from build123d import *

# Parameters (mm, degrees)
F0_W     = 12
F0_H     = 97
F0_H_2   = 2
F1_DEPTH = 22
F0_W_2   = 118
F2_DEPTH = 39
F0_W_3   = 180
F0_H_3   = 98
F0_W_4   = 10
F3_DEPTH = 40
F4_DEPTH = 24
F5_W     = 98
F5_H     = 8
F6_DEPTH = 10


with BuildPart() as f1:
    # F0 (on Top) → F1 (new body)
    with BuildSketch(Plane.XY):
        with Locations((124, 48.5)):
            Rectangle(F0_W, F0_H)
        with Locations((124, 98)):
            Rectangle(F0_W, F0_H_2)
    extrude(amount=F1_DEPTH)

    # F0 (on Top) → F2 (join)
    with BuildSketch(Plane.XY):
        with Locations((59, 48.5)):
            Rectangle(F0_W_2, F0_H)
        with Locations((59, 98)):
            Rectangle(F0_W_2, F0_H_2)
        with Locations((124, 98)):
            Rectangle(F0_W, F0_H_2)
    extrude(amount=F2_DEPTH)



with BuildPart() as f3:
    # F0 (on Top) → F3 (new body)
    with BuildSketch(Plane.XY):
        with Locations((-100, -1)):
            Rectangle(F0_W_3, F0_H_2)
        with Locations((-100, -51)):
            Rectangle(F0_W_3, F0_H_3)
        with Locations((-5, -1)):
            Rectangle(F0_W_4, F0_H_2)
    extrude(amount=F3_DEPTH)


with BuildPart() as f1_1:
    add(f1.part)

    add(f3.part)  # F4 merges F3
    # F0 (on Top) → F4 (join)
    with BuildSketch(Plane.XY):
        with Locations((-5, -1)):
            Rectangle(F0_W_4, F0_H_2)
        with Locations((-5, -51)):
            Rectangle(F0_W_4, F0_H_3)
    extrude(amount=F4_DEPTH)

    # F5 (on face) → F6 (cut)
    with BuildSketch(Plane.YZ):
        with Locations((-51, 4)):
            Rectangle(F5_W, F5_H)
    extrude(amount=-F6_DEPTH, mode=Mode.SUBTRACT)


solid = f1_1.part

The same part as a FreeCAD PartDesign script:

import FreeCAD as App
import Part
import Sketcher

V = App.Vector


def add_polygon(sketch, points):
    """Adds a closed chain of lines whose ends are joined by coincident constraints."""
    first, n = sketch.GeometryCount, len(points)
    for a, b in zip(points, points[1:] + points[:1]):
        sketch.addGeometry(Part.LineSegment(App.Vector(*a, 0), App.Vector(*b, 0)), False)
    for i in range(n):
        sketch.addConstraint(Sketcher.Constraint("Coincident", first + i, 2, first + (i + 1) % n, 1))

doc = App.newDocument("Part")
body = doc.addObject("PartDesign::Body", "Body")

# Sketch on XY plane
sketch1 = body.newObject("Sketcher::SketchObject", "Sketch")
sketch1.AttachmentSupport = (doc.getObject("XY_Plane"), [""])
sketch1.MapMode = "FlatFace"
add_polygon(sketch1, [(118, 0), (130, 0), (130, 99), (118, 99)])  # lines 0-3
sketch1.addConstraint([
    Sketcher.Constraint("Horizontal", 0),
    Sketcher.Constraint("Vertical", 1),
    Sketcher.Constraint("Horizontal", 2),
    Sketcher.Constraint("Vertical", 3),
    Sketcher.Constraint("PointOnObject", 0, 2, -1),
    Sketcher.Constraint("DistanceX", 0, 1, 0, 2, 12.0),
    Sketcher.Constraint("DistanceY", 1, 1, 1, 2, 99.0),
    Sketcher.Constraint("DistanceX", -1, 1, 0, 2, 130.0),
])
pad1 = body.newObject("PartDesign::Pad", "Pad")
pad1.Profile = sketch1
pad1.Length = 22

# Sketch on XY plane
sketch2 = body.newObject("Sketcher::SketchObject", "Sketch001")
sketch2.AttachmentSupport = (doc.getObject("XY_Plane"), [""])
sketch2.MapMode = "FlatFace"
add_polygon(sketch2, [(0, 0), (118, 0), (118, 97), (130, 97), (130, 99), (0, 99)])  # lines 0-5
sketch2.addConstraint([
    Sketcher.Constraint("Horizontal", 0),
    Sketcher.Constraint("Vertical", 1),
    Sketcher.Constraint("Horizontal", 2),
    Sketcher.Constraint("Vertical", 3),
    Sketcher.Constraint("Horizontal", 4),
    Sketcher.Constraint("Vertical", 5),
    Sketcher.Constraint("Coincident", 5, 2, -1, 1),
    Sketcher.Constraint("DistanceX", 0, 1, 0, 2, 118.0),
    Sketcher.Constraint("DistanceX", 2, 1, 2, 2, 12.0),
    Sketcher.Constraint("DistanceY", 1, 1, 1, 2, 97.0),
    Sketcher.Constraint("DistanceY", 3, 1, 3, 2, 2.0),
])
pad2 = body.newObject("PartDesign::Pad", "Pad001")
pad2.Profile = sketch2
pad2.Length = 39
body2 = doc.addObject("PartDesign::Body", "Body001")

# Sketch on XY plane
sketch3 = body2.newObject("Sketcher::SketchObject", "Sketch002")
sketch3.AttachmentSupport = (doc.getObject("XY_Plane001"), [""])
sketch3.MapMode = "FlatFace"
add_polygon(sketch3, [(-190, 0), (-190, -100), (-10, -100), (-10, -2), (0, -2), (0, 0)])  # lines 0-5
sketch3.addConstraint([
    Sketcher.Constraint("Vertical", 0),
    Sketcher.Constraint("Horizontal", 1),
    Sketcher.Constraint("Vertical", 2),
    Sketcher.Constraint("Horizontal", 3),
    Sketcher.Constraint("Vertical", 4),
    Sketcher.Constraint("Horizontal", 5),
    Sketcher.Constraint("Coincident", 4, 2, -1, 1),
    Sketcher.Constraint("DistanceX", 1, 1, 1, 2, 180.0),
    Sketcher.Constraint("DistanceX", 3, 1, 3, 2, 10.0),
    Sketcher.Constraint("DistanceY", 0, 2, 0, 1, 100.0),
    Sketcher.Constraint("DistanceY", 2, 1, 2, 2, 98.0),
])
pad3 = body2.newObject("PartDesign::Pad", "Pad002")
pad3.Profile = sketch3
pad3.Length = 40
body.AllowCompound = True
doc.recompute()

boolean = body.newObject("PartDesign::Boolean", "Boolean")
boolean.Type = "Fuse"
boolean.addObjects([body2])

# Sketch on XY plane
sketch4 = body.newObject("Sketcher::SketchObject", "Sketch003")
sketch4.AttachmentSupport = (doc.getObject("XY_Plane"), [""])
sketch4.MapMode = "FlatFace"
add_polygon(sketch4, [(-10, 0), (-10, -100), (0, -100), (0, 0)])  # lines 0-3
sketch4.addConstraint([
    Sketcher.Constraint("Vertical", 0),
    Sketcher.Constraint("Horizontal", 1),
    Sketcher.Constraint("Vertical", 2),
    Sketcher.Constraint("Horizontal", 3),
    Sketcher.Constraint("Coincident", 2, 2, -1, 1),
    Sketcher.Constraint("DistanceX", 1, 1, 1, 2, 10.0),
    Sketcher.Constraint("DistanceY", 0, 2, 0, 1, 100.0),
])
pad4 = body.newObject("PartDesign::Pad", "Pad003")
pad4.Profile = sketch4
pad4.Length = 24

# Sketch on YZ plane
sketch5 = body.newObject("Sketcher::SketchObject", "Sketch004")
sketch5.AttachmentSupport = (doc.getObject("YZ_Plane"), [""])
sketch5.MapMode = "FlatFace"
add_polygon(sketch5, [(-100, 8), (-100, 0), (-2, 0), (-2, 8)])  # lines 0-3
sketch5.addConstraint([
    Sketcher.Constraint("Vertical", 0),
    Sketcher.Constraint("Horizontal", 1),
    Sketcher.Constraint("Vertical", 2),
    Sketcher.Constraint("Horizontal", 3),
    Sketcher.Constraint("PointOnObject", 0, 2, -1),
    Sketcher.Constraint("DistanceX", 1, 1, 1, 2, 98.0),
    Sketcher.Constraint("DistanceY", 0, 2, 0, 1, 8.0),
    Sketcher.Constraint("DistanceX", 0, 2, -1, 1, 100.0),
])
pocket1 = body.newObject("PartDesign::Pocket", "Pocket")
pocket1.Profile = sketch5
pocket1.Length = 10

doc.recompute()
